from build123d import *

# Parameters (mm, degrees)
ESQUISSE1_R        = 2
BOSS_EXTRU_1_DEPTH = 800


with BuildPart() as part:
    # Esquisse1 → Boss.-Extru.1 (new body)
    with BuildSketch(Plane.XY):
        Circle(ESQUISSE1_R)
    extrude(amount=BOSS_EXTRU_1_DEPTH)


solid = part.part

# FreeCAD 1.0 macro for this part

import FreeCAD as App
import Part
import Sketcher
from FreeCAD import Vector
Q = App.Units.Quantity

doc = App.newDocument("Part")
params = doc.addObject("Spreadsheet::Sheet", "Params")
for row, (alias, value) in enumerate([
    ("sketch1_diameter", "4 mm"),
    ("pad1_length", "800 mm"),
], start=1):
    params.set(f"A{row}", alias)
    params.set(f"B{row}", "=" + value)
    params.setAlias(f"B{row}", alias)

body = doc.addObject("PartDesign::Body", "Body")

# Sketch on XY plane
sketch1 = doc.addObject("Sketcher::SketchObject", "Sketch")
body.addObject(sketch1)
sketch1.AttachmentSupport = (doc.XY_Plane, [""])
sketch1.MapMode = "FlatFace"
sketch1.addGeometry(Part.Circle(Vector(0, 0, 0), Vector(0, 0, 1), 2), False)
sketch1.addConstraint([
    Sketcher.Constraint("Coincident", 0, 3, -1, 1),
    Sketcher.Constraint("Diameter", 0, Q("4 mm")),
])
sketch1.setExpression("Constraints[1]", "Params.sketch1_diameter")
pad1 = doc.addObject("PartDesign::Pad", "Pad")
body.addObject(pad1)
pad1.Profile = sketch1
pad1.setExpression("Length", "Params.pad1_length")

doc.recompute()
